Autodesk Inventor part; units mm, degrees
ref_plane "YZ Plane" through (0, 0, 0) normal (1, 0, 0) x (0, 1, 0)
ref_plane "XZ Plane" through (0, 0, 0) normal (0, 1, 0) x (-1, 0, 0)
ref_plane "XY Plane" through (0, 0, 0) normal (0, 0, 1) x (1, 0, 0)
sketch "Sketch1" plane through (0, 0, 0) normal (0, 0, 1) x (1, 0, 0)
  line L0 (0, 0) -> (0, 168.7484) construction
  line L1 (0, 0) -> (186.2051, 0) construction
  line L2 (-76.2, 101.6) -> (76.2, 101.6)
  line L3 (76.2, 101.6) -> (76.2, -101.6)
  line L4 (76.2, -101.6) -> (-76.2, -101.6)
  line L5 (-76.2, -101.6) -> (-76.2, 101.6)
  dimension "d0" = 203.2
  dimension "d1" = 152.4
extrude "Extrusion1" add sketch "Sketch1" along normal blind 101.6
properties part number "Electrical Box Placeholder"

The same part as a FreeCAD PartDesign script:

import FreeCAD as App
import Part
import Sketcher
from FreeCAD import Vector
Q = App.Units.Quantity


def add_polygon(sketch, points):
    """Adds a closed chain of lines whose ends are joined by coincident constraints."""
    first, n = sketch.GeometryCount, len(points)
    for a, b in zip(points, points[1:] + points[:1]):
        sketch.addGeometry(Part.LineSegment(App.Vector(*a, 0), App.Vector(*b, 0)), False)
    for i in range(n):
        sketch.addConstraint(Sketcher.Constraint("Coincident", first + i, 2, first + (i + 1) % n, 1))

doc = App.newDocument("Part")
body = doc.addObject("PartDesign::Body", "Body")

sketch1 = doc.addObject("Sketcher::SketchObject", "Sketch")
body.addObject(sketch1)
sketch1.AttachmentSupport = (doc.XY_Plane, [""])
sketch1.MapMode = "FlatFace"
add_polygon(sketch1, [(76, 102), (-76, 102), (-76, -102), (76, -102)])
sketch1.addConstraint(Sketcher.Constraint("Horizontal", 0))
sketch1.addConstraint(Sketcher.Constraint("Vertical", 1))
sketch1.addConstraint(Sketcher.Constraint("Horizontal", 2))
sketch1.addConstraint(Sketcher.Constraint("Vertical", 3))
sketch1.addConstraint(Sketcher.Constraint("Symmetric", 0, 2, 2, 2, -1, 1))
sketch1.addConstraint(Sketcher.Constraint("DistanceX", 0, 2, 0, 1, Q("6 in")))
sketch1.addConstraint(Sketcher.Constraint("DistanceY", 1, 2, 1, 1, Q("8 in")))
pad1 = doc.addObject("PartDesign::Pad", "Pad")
body.addObject(pad1)
pad1.Profile = sketch1
pad1.Length = Q("4 in")

doc.recompute()
